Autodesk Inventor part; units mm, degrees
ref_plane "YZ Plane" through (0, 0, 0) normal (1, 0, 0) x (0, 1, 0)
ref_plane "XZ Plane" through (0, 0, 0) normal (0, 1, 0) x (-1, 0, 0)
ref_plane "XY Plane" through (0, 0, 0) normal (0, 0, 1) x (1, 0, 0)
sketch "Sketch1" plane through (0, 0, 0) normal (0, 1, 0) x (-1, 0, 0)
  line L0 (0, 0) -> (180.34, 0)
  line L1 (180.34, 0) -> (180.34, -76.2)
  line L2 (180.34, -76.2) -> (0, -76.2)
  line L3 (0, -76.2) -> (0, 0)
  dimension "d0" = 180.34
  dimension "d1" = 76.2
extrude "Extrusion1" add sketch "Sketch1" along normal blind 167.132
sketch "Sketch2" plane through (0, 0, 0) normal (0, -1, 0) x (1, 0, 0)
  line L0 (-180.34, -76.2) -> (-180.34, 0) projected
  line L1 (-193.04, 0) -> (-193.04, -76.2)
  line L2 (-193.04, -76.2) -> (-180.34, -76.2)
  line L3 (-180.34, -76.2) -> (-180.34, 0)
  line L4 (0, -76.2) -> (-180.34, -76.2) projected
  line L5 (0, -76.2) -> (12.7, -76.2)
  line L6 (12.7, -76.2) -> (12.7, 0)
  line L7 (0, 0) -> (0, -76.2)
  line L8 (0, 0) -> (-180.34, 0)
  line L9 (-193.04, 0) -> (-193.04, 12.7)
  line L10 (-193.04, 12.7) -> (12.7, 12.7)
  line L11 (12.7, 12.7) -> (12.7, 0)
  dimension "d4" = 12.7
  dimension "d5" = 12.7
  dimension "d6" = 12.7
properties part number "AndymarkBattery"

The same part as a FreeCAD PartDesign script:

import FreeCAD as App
import Part
import Sketcher
from FreeCAD import Vector
Q = App.Units.Quantity


def add_polygon(sketch, points):
    """Adds a closed chain of lines whose ends are joined by coincident constraints."""
    first, n = sketch.GeometryCount, len(points)
    for a, b in zip(points, points[1:] + points[:1]):
        sketch.addGeometry(Part.LineSegment(App.Vector(*a, 0), App.Vector(*b, 0)), False)
    for i in range(n):
        sketch.addConstraint(Sketcher.Constraint("Coincident", first + i, 2, first + (i + 1) % n, 1))

doc = App.newDocument("Part")
params = doc.addObject("Spreadsheet::Sheet", "Params")
for row, (alias, value) in enumerate([
    ("sketch1_height", "3 in"),
    ("sketch1_width", "7.1 in"),
    ("pad1_length", "6.58 in"),
], start=1):
    params.set(f"A{row}", alias)
    params.set(f"B{row}", "=" + value)
    params.setAlias(f"B{row}", alias)

body = doc.addObject("PartDesign::Body", "Body")

# Sketch on XZ plane
sketch1 = doc.addObject("Sketcher::SketchObject", "Sketch")
body.addObject(sketch1)
sketch1.AttachmentSupport = (doc.XZ_Plane, [""])
sketch1.MapMode = "FlatFace"
add_polygon(sketch1, [(-180.34, 0), (0, 0), (0, -76.2), (-180.34, -76.2)])  # lines 0-3
sketch1.addConstraint([
    Sketcher.Constraint("Horizontal", 0),
    Sketcher.Constraint("Vertical", 1),
    Sketcher.Constraint("Horizontal", 2),
    Sketcher.Constraint("Vertical", 3),
    Sketcher.Constraint("Coincident", 0, 2, -1, 1),
    Sketcher.Constraint("DistanceY", 1, 2, 1, 1, Q("3 in")),
    Sketcher.Constraint("DistanceX", 0, 1, 0, 2, Q("7.1 in")),
])
sketch1.setExpression("Constraints[9]", "Params.sketch1_height")
sketch1.setExpression("Constraints[10]", "Params.sketch1_width")
pad1 = doc.addObject("PartDesign::Pad", "Pad")
body.addObject(pad1)
pad1.Profile = sketch1
pad1.setExpression("Length", "Params.pad1_length")
pad1.Reversed = True

doc.recompute()
